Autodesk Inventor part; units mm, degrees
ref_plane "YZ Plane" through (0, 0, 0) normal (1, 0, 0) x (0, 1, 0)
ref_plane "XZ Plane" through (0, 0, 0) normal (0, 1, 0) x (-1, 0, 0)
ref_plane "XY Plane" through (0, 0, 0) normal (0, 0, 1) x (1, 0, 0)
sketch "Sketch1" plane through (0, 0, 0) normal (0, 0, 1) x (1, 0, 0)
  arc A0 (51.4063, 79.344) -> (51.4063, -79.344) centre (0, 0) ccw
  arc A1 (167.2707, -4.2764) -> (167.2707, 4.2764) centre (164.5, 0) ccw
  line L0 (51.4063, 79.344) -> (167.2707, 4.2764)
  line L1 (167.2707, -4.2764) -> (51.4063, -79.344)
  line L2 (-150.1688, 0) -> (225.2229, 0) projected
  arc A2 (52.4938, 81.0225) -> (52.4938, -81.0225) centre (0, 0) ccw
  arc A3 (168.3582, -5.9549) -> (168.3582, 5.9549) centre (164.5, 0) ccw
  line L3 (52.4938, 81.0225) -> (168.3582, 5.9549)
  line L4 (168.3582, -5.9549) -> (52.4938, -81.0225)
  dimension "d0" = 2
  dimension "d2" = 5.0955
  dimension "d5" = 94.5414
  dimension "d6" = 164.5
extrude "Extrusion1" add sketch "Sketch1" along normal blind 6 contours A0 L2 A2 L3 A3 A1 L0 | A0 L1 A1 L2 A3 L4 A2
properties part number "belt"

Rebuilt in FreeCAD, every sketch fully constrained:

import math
import FreeCAD as App
import Part
import Sketcher

V = App.Vector

doc = App.newDocument("Part")
body = doc.addObject("PartDesign::Body", "Body")

sketch1 = doc.addObject("Sketcher::SketchObject", "Sketch")
body.addObject(sketch1)
sketch1.AttachmentSupport = (doc.XY_Plane, [""])
sketch1.MapMode = "FlatFace"
sketch1.addGeometry(Part.ArcOfCircle(Part.Circle(V(0, 0, 0), V(0, 0, 1), 97), math.radians(57), math.radians(303)), False)
sketch1.addGeometry(Part.LineSegment(V(52, -81, 0), V(168, -6, 0)), False)
sketch1.addGeometry(Part.ArcOfCircle(Part.Circle(V(164, 0, 0), V(0, 0, 1), 7), math.radians(-57), math.radians(57)), False)
sketch1.addGeometry(Part.LineSegment(V(168, 6, 0), V(52, 81, 0)), False)
sketch1.addGeometry(Part.LineSegment(V(51, 79, 0), V(167, 4, 0)), False)
sketch1.addGeometry(Part.ArcOfCircle(Part.Circle(V(164, 0, 0), V(0, 0, 1), 5), math.radians(-57), math.radians(57)), False)
sketch1.addGeometry(Part.LineSegment(V(167, -4, 0), V(51, -79, 0)), False)
sketch1.addGeometry(Part.ArcOfCircle(Part.Circle(V(0, 0, 0), V(0, 0, 1), 95), math.radians(57), math.radians(303)), False)
sketch1.addConstraint(Sketcher.Constraint("Tangent", 0, 2, 1, 1))
sketch1.addConstraint(Sketcher.Constraint("Tangent", 1, 2, 2, 1))
sketch1.addConstraint(Sketcher.Constraint("Tangent", 2, 2, 3, 1))
sketch1.addConstraint(Sketcher.Constraint("Tangent", 3, 2, 0, 1))
sketch1.addConstraint(Sketcher.Constraint("Tangent", 4, 2, 5, 2))
sketch1.addConstraint(Sketcher.Constraint("Tangent", 5, 1, 6, 1))
sketch1.addConstraint(Sketcher.Constraint("Tangent", 6, 2, 7, 2))
sketch1.addConstraint(Sketcher.Constraint("Tangent", 7, 1, 4, 1))
sketch1.addConstraint(Sketcher.Constraint("Coincident", 0, 3, -1, 1))
sketch1.addConstraint(Sketcher.Constraint("Coincident", 7, 3, -1, 1))
sketch1.addConstraint(Sketcher.Constraint("Coincident", 5, 3, 2, 3))
sketch1.addConstraint(Sketcher.Constraint("PointOnObject", 2, 3, -1))
sketch1.addConstraint(Sketcher.Constraint("Parallel", 3, 4))
sketch1.addConstraint(Sketcher.Constraint("DistanceX", -1, 1, 2, 3, 164.5))
sketch1.addConstraint(Sketcher.Constraint("Radius", 5, 5.0955))
sketch1.addConstraint(Sketcher.Constraint("Radius", 7, 94.5414))
sketch1.addConstraint(Sketcher.Constraint("Radius", 0, 96.5414))
pad1 = doc.addObject("PartDesign::Pad", "Pad")
body.addObject(pad1)
pad1.Profile = sketch1
pad1.Length = 6

doc.recompute()
